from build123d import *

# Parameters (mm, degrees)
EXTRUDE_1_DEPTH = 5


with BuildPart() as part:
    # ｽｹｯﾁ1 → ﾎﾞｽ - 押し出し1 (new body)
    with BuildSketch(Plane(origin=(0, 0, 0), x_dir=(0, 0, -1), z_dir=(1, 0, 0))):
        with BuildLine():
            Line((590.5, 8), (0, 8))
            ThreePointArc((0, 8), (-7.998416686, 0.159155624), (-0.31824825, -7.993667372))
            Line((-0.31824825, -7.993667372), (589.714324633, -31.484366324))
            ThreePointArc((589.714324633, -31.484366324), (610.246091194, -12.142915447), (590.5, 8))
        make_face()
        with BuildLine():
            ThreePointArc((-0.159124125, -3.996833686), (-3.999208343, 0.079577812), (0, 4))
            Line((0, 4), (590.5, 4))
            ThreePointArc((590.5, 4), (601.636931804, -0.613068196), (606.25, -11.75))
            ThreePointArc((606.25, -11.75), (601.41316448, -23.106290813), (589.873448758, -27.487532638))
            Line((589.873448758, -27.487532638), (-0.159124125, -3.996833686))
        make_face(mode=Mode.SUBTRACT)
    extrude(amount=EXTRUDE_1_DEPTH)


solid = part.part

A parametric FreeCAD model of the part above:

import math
import FreeCAD as App
import Part
import Sketcher

doc = App.newDocument("Part")
body = doc.addObject("PartDesign::Body", "Body")

# Sketch on YZ plane
sketch1 = doc.addObject("Sketcher::SketchObject", "Sketch")
body.addObject(sketch1)
sketch1.AttachmentSupport = (doc.YZ_Plane, [""])
sketch1.MapMode = "FlatFace"
sketch1.addGeometry(Part.LineSegment(App.Vector(8, -590.5, 0), App.Vector(8, 0, 0)), False)
sketch1.addGeometry(Part.ArcOfCircle(Part.Circle(App.Vector(0, 0, 0), App.Vector(0, 0, 1), 8), math.radians(0), math.radians(177.720113)), False)
sketch1.addGeometry(Part.LineSegment(App.Vector(-7.993667, 0.318248, 0), App.Vector(-31.484366, -589.714325, 0)), False)
sketch1.addGeometry(Part.ArcOfCircle(Part.Circle(App.Vector(-11.75, -590.5, 0), App.Vector(0, 0, 1), 19.75), math.radians(177.720113), math.radians(360)), False)
sketch1.addGeometry(Part.LineSegment(App.Vector(-27.487533, -589.873449, 0), App.Vector(-3.996834, 0.159124, 0)), False)
sketch1.addGeometry(Part.ArcOfCircle(Part.Circle(App.Vector(0, 0, 0), App.Vector(0, 0, 1), 4), math.radians(0), math.radians(177.720113)), False)
sketch1.addGeometry(Part.LineSegment(App.Vector(4, 0, 0), App.Vector(4, -590.5, 0)), False)
sketch1.addGeometry(Part.ArcOfCircle(Part.Circle(App.Vector(-11.75, -590.5, 0), App.Vector(0, 0, 1), 15.75), math.radians(-90), math.radians(0)), False)
sketch1.addGeometry(Part.ArcOfCircle(Part.Circle(App.Vector(-11.75, -590.5, 0), App.Vector(0, 0, 1), 15.75), math.radians(177.720113), math.radians(270)), False)
sketch1.addConstraint(Sketcher.Constraint("Tangent", 0, 2, 1, 1))
sketch1.addConstraint(Sketcher.Constraint("Tangent", 1, 2, 2, 1))
sketch1.addConstraint(Sketcher.Constraint("Tangent", 2, 2, 3, 1))
sketch1.addConstraint(Sketcher.Constraint("Tangent", 3, 2, 0, 1))
sketch1.addConstraint(Sketcher.Constraint("Tangent", 4, 2, 5, 2))
sketch1.addConstraint(Sketcher.Constraint("Tangent", 5, 1, 6, 1))
sketch1.addConstraint(Sketcher.Constraint("Tangent", 6, 2, 7, 2))
sketch1.addConstraint(Sketcher.Constraint("Tangent", 7, 1, 8, 2))
sketch1.addConstraint(Sketcher.Constraint("Tangent", 8, 1, 4, 1))
sketch1.addConstraint(Sketcher.Constraint("Vertical", 0))
sketch1.addConstraint(Sketcher.Constraint("Vertical", 6))
sketch1.addConstraint(Sketcher.Constraint("Coincident", 1, 3, -1, 1))
sketch1.addConstraint(Sketcher.Constraint("Coincident", 5, 3, -1, 1))
sketch1.addConstraint(Sketcher.Constraint("Coincident", 7, 3, 3, 3))
sketch1.addConstraint(Sketcher.Constraint("Equal", 7, 8))
sketch1.addConstraint(Sketcher.Constraint("Vertical", 8, 3, 7, 1))
sketch1.addConstraint(Sketcher.Constraint("Radius", 1, 8.0))
sketch1.addConstraint(Sketcher.Constraint("Radius", 5, 4.0))
sketch1.addConstraint(Sketcher.Constraint("Radius", 3, 19.75))
sketch1.addConstraint(Sketcher.Constraint("DistanceY", 0, 1, 0, 2, 590.5))
pad1 = doc.addObject("PartDesign::Pad", "Pad")
body.addObject(pad1)
pad1.Profile = sketch1
pad1.Length = 5

doc.recompute()
